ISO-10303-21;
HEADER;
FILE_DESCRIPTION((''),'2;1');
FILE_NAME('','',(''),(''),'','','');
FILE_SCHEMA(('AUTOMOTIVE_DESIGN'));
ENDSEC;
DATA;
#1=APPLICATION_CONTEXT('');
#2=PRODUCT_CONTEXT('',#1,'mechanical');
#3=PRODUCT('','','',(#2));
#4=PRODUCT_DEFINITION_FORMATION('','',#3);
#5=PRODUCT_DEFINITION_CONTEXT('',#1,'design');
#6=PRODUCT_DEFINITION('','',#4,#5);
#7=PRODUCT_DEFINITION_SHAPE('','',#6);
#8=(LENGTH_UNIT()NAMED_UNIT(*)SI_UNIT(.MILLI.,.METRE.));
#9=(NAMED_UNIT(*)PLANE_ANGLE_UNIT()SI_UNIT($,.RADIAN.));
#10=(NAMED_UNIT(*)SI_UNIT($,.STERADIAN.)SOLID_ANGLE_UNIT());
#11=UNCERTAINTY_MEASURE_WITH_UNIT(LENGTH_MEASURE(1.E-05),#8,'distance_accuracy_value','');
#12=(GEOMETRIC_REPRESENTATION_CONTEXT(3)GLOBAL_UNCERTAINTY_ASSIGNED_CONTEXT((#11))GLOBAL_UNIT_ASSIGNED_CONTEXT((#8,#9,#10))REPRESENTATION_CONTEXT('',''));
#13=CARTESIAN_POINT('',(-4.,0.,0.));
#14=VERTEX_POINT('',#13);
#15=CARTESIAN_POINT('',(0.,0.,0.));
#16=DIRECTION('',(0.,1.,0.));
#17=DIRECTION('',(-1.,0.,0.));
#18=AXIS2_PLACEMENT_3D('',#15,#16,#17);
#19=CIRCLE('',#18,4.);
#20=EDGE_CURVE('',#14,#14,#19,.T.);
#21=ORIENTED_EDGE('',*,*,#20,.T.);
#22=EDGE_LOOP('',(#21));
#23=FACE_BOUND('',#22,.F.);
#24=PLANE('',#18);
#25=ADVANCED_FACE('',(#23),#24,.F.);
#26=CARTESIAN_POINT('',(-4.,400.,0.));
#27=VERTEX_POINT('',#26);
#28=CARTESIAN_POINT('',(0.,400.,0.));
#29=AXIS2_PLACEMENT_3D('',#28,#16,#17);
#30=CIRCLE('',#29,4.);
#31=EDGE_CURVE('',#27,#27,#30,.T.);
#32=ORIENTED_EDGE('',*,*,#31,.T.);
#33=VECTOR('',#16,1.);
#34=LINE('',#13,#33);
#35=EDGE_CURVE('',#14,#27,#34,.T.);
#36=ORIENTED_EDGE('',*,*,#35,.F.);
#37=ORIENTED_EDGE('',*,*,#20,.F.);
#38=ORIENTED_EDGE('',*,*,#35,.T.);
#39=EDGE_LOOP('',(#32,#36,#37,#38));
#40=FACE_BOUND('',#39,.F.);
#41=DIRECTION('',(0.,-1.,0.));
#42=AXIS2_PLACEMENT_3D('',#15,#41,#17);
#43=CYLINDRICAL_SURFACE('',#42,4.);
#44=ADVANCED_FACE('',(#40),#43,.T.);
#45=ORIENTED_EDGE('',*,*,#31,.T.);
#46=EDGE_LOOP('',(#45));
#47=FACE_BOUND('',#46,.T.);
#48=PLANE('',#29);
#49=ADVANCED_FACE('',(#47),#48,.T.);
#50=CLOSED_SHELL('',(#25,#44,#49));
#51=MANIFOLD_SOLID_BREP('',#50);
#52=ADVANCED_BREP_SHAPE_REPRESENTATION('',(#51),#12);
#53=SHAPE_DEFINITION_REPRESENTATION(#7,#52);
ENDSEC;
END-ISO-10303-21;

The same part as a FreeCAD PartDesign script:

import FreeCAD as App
import Part
import Sketcher

V = App.Vector

doc = App.newDocument("Part")
body = doc.addObject("PartDesign::Body", "Body")

# Sketch on XZ plane
sketch1 = body.newObject("Sketcher::SketchObject", "Sketch")
sketch1.AttachmentSupport = (doc.getObject("XZ_Plane"), [""])
sketch1.MapMode = "FlatFace"
sketch1.addGeometry(Part.Circle(V(0, 0, 0), V(0, 0, 1), 4), False)
sketch1.addConstraint([
    Sketcher.Constraint("Coincident", 0, 3, -1, 1),
    Sketcher.Constraint("Diameter", 0, 8.0),
])
pad1 = body.newObject("PartDesign::Pad", "Pad")
pad1.Profile = sketch1
pad1.Length = 400
pad1.Reversed = True

doc.recompute()
